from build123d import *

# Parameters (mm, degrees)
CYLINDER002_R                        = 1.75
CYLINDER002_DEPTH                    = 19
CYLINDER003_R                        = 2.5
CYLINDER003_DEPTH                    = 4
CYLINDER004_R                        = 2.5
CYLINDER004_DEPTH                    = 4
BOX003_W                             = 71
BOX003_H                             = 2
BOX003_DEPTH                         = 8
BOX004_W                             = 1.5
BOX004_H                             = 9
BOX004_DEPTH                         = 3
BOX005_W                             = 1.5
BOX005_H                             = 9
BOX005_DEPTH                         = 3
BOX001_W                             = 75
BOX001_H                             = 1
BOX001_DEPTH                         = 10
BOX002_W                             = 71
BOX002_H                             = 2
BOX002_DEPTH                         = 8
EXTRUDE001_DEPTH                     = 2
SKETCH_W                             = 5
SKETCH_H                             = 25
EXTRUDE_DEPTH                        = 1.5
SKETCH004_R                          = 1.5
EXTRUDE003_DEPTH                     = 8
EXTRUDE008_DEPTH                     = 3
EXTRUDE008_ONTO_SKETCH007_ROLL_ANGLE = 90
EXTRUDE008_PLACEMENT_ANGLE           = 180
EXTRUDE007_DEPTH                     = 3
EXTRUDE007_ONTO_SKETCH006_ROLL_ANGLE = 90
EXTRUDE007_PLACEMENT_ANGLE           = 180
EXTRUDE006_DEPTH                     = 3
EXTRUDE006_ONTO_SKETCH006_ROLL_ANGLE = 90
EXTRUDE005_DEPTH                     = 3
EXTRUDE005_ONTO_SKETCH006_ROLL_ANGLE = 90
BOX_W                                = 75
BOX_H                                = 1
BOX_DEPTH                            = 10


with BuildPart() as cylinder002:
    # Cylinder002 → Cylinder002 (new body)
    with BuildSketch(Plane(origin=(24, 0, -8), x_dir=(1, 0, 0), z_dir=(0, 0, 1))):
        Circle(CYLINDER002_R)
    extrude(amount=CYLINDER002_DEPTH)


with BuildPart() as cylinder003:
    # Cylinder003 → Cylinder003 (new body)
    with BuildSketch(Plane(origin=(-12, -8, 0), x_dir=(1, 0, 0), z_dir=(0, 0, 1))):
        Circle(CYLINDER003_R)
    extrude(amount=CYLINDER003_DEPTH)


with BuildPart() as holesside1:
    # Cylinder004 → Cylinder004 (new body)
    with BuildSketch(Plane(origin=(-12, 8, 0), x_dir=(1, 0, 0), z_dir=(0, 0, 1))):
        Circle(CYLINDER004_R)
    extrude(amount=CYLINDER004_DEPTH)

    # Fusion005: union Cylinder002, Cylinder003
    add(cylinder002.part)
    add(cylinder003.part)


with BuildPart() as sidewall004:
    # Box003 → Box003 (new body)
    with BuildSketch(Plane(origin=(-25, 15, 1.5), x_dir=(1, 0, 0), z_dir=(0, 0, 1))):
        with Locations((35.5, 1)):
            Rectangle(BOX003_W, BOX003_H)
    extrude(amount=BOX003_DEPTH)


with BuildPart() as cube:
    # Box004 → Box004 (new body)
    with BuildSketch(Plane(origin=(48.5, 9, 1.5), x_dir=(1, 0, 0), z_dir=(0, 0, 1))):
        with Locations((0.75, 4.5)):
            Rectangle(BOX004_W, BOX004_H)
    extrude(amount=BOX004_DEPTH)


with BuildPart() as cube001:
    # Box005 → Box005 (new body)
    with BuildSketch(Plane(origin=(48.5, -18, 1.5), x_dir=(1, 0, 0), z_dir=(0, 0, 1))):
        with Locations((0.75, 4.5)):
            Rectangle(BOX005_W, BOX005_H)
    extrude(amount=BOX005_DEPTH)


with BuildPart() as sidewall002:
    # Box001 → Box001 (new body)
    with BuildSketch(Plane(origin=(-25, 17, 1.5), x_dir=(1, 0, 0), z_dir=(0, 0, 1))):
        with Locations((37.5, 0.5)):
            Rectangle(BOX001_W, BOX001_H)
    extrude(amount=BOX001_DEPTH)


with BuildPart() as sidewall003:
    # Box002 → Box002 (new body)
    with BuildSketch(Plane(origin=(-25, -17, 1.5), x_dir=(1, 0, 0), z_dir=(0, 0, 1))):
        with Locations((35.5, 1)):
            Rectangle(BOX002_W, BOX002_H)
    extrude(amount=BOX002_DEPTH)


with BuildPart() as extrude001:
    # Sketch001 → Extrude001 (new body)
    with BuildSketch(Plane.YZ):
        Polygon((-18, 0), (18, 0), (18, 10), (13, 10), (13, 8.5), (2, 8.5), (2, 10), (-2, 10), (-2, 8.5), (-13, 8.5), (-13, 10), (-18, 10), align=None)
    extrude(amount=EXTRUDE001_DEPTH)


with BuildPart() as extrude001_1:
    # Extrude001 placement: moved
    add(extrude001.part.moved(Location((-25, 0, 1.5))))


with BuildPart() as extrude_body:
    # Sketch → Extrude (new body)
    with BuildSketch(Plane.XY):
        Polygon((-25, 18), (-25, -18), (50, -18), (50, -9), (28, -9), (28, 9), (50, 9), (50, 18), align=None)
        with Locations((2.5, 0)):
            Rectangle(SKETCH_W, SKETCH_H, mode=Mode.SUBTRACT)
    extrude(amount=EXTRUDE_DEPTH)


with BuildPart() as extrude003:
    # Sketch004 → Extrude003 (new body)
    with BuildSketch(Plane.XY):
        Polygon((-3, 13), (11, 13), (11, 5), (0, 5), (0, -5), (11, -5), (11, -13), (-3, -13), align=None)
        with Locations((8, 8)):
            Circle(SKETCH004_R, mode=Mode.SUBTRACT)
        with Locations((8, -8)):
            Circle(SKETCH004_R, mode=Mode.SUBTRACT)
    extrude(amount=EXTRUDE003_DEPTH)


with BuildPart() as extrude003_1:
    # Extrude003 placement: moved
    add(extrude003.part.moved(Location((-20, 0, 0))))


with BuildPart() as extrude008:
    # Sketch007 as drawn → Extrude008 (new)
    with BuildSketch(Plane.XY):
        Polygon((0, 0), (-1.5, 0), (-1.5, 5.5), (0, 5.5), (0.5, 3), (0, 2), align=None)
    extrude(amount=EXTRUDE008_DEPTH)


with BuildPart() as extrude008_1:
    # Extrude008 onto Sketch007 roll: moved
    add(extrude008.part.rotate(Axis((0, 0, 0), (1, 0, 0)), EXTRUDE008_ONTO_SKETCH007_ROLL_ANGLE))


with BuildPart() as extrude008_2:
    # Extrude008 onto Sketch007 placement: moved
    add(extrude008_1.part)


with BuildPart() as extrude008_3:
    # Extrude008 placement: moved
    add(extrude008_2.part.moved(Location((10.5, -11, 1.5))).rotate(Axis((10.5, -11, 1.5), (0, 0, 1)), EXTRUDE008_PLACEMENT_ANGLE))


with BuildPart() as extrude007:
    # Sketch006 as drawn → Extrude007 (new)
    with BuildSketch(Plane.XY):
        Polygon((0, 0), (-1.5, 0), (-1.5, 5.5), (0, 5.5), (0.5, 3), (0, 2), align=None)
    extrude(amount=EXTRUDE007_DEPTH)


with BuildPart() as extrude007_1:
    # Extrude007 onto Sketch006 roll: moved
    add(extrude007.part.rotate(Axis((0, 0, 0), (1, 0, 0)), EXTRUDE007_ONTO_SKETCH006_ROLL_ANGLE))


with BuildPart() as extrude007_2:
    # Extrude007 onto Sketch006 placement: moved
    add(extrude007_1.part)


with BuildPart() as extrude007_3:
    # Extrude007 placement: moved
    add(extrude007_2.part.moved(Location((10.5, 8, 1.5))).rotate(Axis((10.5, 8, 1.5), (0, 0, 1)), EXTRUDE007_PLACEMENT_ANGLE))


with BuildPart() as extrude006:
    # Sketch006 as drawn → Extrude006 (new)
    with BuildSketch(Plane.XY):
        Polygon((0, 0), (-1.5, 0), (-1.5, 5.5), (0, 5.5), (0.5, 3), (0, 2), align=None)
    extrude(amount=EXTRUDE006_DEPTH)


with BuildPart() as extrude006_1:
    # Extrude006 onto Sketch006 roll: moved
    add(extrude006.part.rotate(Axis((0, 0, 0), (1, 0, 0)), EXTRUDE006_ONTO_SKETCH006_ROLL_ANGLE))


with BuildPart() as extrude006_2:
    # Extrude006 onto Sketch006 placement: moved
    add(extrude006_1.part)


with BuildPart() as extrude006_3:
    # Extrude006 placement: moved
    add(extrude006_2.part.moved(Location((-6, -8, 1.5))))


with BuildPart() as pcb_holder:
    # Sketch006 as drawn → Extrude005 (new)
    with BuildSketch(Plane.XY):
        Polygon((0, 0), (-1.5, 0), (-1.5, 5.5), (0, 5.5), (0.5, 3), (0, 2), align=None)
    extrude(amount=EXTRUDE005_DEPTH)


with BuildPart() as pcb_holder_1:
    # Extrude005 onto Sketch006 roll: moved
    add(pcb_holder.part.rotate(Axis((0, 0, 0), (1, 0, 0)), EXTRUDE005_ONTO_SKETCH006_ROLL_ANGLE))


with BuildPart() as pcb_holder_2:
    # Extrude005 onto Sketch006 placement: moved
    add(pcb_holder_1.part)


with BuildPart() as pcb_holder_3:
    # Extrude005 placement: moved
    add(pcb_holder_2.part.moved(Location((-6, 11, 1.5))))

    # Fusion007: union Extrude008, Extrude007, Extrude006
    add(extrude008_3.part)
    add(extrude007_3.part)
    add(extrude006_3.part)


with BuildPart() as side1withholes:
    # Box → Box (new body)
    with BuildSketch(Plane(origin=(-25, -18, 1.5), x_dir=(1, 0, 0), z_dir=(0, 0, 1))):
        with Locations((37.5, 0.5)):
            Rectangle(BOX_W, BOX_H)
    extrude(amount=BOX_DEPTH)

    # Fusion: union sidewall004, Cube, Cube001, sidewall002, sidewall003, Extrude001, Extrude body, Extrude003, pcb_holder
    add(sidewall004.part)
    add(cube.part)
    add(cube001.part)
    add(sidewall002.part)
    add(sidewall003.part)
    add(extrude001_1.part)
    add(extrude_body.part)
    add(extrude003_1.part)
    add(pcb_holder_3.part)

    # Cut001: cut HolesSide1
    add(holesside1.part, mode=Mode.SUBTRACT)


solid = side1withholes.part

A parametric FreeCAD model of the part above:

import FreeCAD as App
import Part
import Sketcher

V = App.Vector
Q = App.Units.Quantity

doc = App.newDocument("Part")
params = doc.addObject("Spreadsheet::Sheet", "Params")
for row, (alias, value) in enumerate([
    ("sketch1_diameter", "3.5 mm"),
    ("pad1_length", "19 mm"),
    ("sketch2_diameter", "5 mm"),
    ("pad2_length", "4 mm"),
    ("sketch3_diameter", "5 mm"),
    ("pad3_length", "4 mm"),
    ("sketch4_width", "71 mm"),
    ("sketch4_height", "2 mm"),
    ("pad4_length", "8 mm"),
    ("sketch5_height", "9 mm"),
    ("sketch5_width", "1.5 mm"),
    ("pad5_length", "3 mm"),
    ("sketch6_height", "9 mm"),
    ("sketch6_width", "1.5 mm"),
    ("pad6_length", "3 mm"),
    ("sketch7_width", "75 mm"),
    ("sketch7_height", "1 mm"),
    ("pad7_length", "10 mm"),
    ("sketch8_width", "71 mm"),
    ("sketch8_height", "2 mm"),
    ("pad8_length", "8 mm"),
    ("sketch9_width", "36 mm"),
    ("sketch9_width2", "5 mm"),
    ("sketch9_width3", "11 mm"),
    ("sketch9_height", "10 mm"),
    ("sketch9_height2", "1.5 mm"),
    ("pad9_length", "2 mm"),
    ("sketch10_width", "75 mm"),
    ("sketch10_width2", "22 mm"),
    ("sketch10_width3", "5 mm"),
    ("sketch10_height", "36 mm"),
    ("sketch10_height2", "9 mm"),
    ("pad10_length", "1.5 mm"),
    ("sketch11_diameter", "3 mm"),
    ("sketch11_width", "14 mm"),
    ("sketch11_width2", "11 mm"),
    ("sketch11_height", "26 mm"),
    ("sketch11_height2", "8 mm"),
    ("pad11_length", "8 mm"),
    ("sketch12_height", "2 mm"),
    ("sketch12_width", "1.5 mm"),
    ("sketch12_height2", "5.5 mm"),
    ("pad12_length", "3 mm"),
    ("sketch13_height", "2 mm"),
    ("sketch13_width", "1.5 mm"),
    ("sketch13_height2", "5.5 mm"),
    ("pad13_length", "3 mm"),
    ("sketch14_height", "2 mm"),
    ("sketch14_width", "1.5 mm"),
    ("sketch14_height2", "5.5 mm"),
    ("pad14_length", "3 mm"),
    ("sketch15_height", "2 mm"),
    ("sketch15_width", "1.5 mm"),
    ("sketch15_height2", "5.5 mm"),
    ("pad15_length", "3 mm"),
    ("sketch16_width", "75 mm"),
    ("sketch16_height", "1 mm"),
    ("pad16_length", "10 mm"),
], start=1):
    params.set(f"A{row}", alias)
    params.set(f"B{row}", "=" + value)
    params.setAlias(f"B{row}", alias)

body = doc.addObject("PartDesign::Body", "Body")

sketch1 = body.newObject("Sketcher::SketchObject", "Sketch")
sketch1.AttachmentSupport = (doc.getObject("XY_Plane"), [""])
sketch1.MapMode = "FlatFace"
sketch1.AttachmentOffset = App.Placement(V(0, 0, -8), App.Rotation())
sketch1.addGeometry(Part.Circle(V(24, 0, 0), V(0, 0, 1), 1.75), False)
sketch1.addConstraint([
    Sketcher.Constraint("PointOnObject", 0, 3, -1),
    Sketcher.Constraint("Diameter", 0, Q("3.5 mm")),
    Sketcher.Constraint("DistanceX", -1, 1, 0, 3, Q("24 mm")),
])
sketch1.setExpression("Constraints[1]", "Params.sketch1_diameter")
pad1 = body.newObject("PartDesign::Pad", "Pad")
pad1.Profile = sketch1
pad1.setExpression("Length", "Params.pad1_length")
body2 = doc.addObject("PartDesign::Body", "Body001")

sketch2 = body2.newObject("Sketcher::SketchObject", "Sketch001")
sketch2.AttachmentSupport = (doc.getObject("XY_Plane001"), [""])
sketch2.MapMode = "FlatFace"
sketch2.addGeometry(Part.Circle(V(-12, -8, 0), V(0, 0, 1), 2.5), False)
sketch2.addConstraint([
    Sketcher.Constraint("Diameter", 0, Q("5 mm")),
    Sketcher.Constraint("DistanceX", 0, 3, -1, 1, Q("12 mm")),
    Sketcher.Constraint("DistanceY", 0, 3, -1, 1, Q("8 mm")),
])
sketch2.setExpression("Constraints[0]", "Params.sketch2_diameter")
pad2 = body2.newObject("PartDesign::Pad", "Pad001")
pad2.Profile = sketch2
pad2.setExpression("Length", "Params.pad2_length")
body3 = doc.addObject("PartDesign::Body", "Body002")
body3.AllowCompound = True

sketch3 = body3.newObject("Sketcher::SketchObject", "Sketch002")
sketch3.AttachmentSupport = (doc.getObject("XY_Plane002"), [""])
sketch3.MapMode = "FlatFace"
sketch3.addGeometry(Part.Circle(V(-12, 8, 0), V(0, 0, 1), 2.5), False)
sketch3.addConstraint([
    Sketcher.Constraint("Diameter", 0, Q("5 mm")),
    Sketcher.Constraint("DistanceX", 0, 3, -1, 1, Q("12 mm")),
    Sketcher.Constraint("DistanceY", -1, 1, 0, 3, Q("8 mm")),
])
sketch3.setExpression("Constraints[0]", "Params.sketch3_diameter")
pad3 = body3.newObject("PartDesign::Pad", "Pad002")
pad3.Profile = sketch3
pad3.setExpression("Length", "Params.pad3_length")
doc.recompute()

boolean = body3.newObject("PartDesign::Boolean", "Boolean")
boolean.Type = "Fuse"
boolean.addObjects([body])
doc.recompute()

boolean2 = body3.newObject("PartDesign::Boolean", "Boolean001")
boolean2.Type = "Fuse"
boolean2.addObjects([body2])
body4 = doc.addObject("PartDesign::Body", "Body003")

sketch4 = body4.newObject("Sketcher::SketchObject", "Sketch003")
sketch4.AttachmentSupport = (doc.getObject("XY_Plane003"), [""])
sketch4.MapMode = "FlatFace"
sketch4.AttachmentOffset = App.Placement(V(0, 0, 1.5), App.Rotation())
sketch4.addGeometry([
    Part.LineSegment(V(-25, 17, 0), V(-25, 15, 0)),
    Part.LineSegment(V(-25, 15, 0), V(46, 15, 0)),
    Part.LineSegment(V(46, 15, 0), V(46, 17, 0)),
    Part.LineSegment(V(46, 17, 0), V(-25, 17, 0)),
], False)
sketch4.addConstraint([
    Sketcher.Constraint("Coincident", 0, 2, 1, 1),
    Sketcher.Constraint("Coincident", 1, 2, 2, 1),
    Sketcher.Constraint("Coincident", 2, 2, 3, 1),
    Sketcher.Constraint("Coincident", 3, 2, 0, 1),
    Sketcher.Constraint("Vertical", 0),
    Sketcher.Constraint("Horizontal", 1),
    Sketcher.Constraint("Vertical", 2),
    Sketcher.Constraint("Horizontal", 3),
    Sketcher.Constraint("DistanceX", 1, 1, 1, 2, Q("71 mm")),
    Sketcher.Constraint("DistanceY", 0, 2, 0, 1, Q("2 mm")),
    Sketcher.Constraint("DistanceX", 0, 2, -1, 1, Q("25 mm")),
    Sketcher.Constraint("DistanceY", -1, 1, 0, 2, Q("15 mm")),
])
sketch4.setExpression("Constraints[8]", "Params.sketch4_width")
sketch4.setExpression("Constraints[9]", "Params.sketch4_height")
pad4 = body4.newObject("PartDesign::Pad", "Pad003")
pad4.Profile = sketch4
pad4.setExpression("Length", "Params.pad4_length")
body5 = doc.addObject("PartDesign::Body", "Body004")

sketch5 = body5.newObject("Sketcher::SketchObject", "Sketch004")
sketch5.AttachmentSupport = (doc.getObject("XY_Plane004"), [""])
sketch5.MapMode = "FlatFace"
sketch5.AttachmentOffset = App.Placement(V(0, 0, 1.5), App.Rotation())
sketch5.addGeometry([
    Part.LineSegment(V(48.5, 18, 0), V(48.5, 9, 0)),
    Part.LineSegment(V(48.5, 9, 0), V(50, 9, 0)),
    Part.LineSegment(V(50, 9, 0), V(50, 18, 0)),
    Part.LineSegment(V(50, 18, 0), V(48.5, 18, 0)),
], False)
sketch5.addConstraint([
    Sketcher.Constraint("Coincident", 0, 2, 1, 1),
    Sketcher.Constraint("Coincident", 1, 2, 2, 1),
    Sketcher.Constraint("Coincident", 2, 2, 3, 1),
    Sketcher.Constraint("Coincident", 3, 2, 0, 1),
    Sketcher.Constraint("Vertical", 0),
    Sketcher.Constraint("Horizontal", 1),
    Sketcher.Constraint("Vertical", 2),
    Sketcher.Constraint("Horizontal", 3),
    Sketcher.Constraint("DistanceY", 0, 2, 0, 1, Q("9 mm")),
    Sketcher.Constraint("DistanceX", 1, 1, 1, 2, Q("1.5 mm")),
    Sketcher.Constraint("DistanceY", -1, 1, 0, 2, Q("9 mm")),
    Sketcher.Constraint("DistanceX", -1, 1, 1, 2, Q("50 mm")),
])
sketch5.setExpression("Constraints[8]", "Params.sketch5_height")
sketch5.setExpression("Constraints[9]", "Params.sketch5_width")
pad5 = body5.newObject("PartDesign::Pad", "Pad004")
pad5.Profile = sketch5
pad5.setExpression("Length", "Params.pad5_length")
body6 = doc.addObject("PartDesign::Body", "Body005")

sketch6 = body6.newObject("Sketcher::SketchObject", "Sketch005")
sketch6.AttachmentSupport = (doc.getObject("XY_Plane005"), [""])
sketch6.MapMode = "FlatFace"
sketch6.AttachmentOffset = App.Placement(V(0, 0, 1.5), App.Rotation())
sketch6.addGeometry([
    Part.LineSegment(V(48.5, -9, 0), V(48.5, -18, 0)),
    Part.LineSegment(V(48.5, -18, 0), V(50, -18, 0)),
    Part.LineSegment(V(50, -18, 0), V(50, -9, 0)),
    Part.LineSegment(V(50, -9, 0), V(48.5, -9, 0)),
], False)
sketch6.addConstraint([
    Sketcher.Constraint("Coincident", 0, 2, 1, 1),
    Sketcher.Constraint("Coincident", 1, 2, 2, 1),
    Sketcher.Constraint("Coincident", 2, 2, 3, 1),
    Sketcher.Constraint("Coincident", 3, 2, 0, 1),
    Sketcher.Constraint("Vertical", 0),
    Sketcher.Constraint("Horizontal", 1),
    Sketcher.Constraint("Vertical", 2),
    Sketcher.Constraint("Horizontal", 3),
    Sketcher.Constraint("DistanceY", 0, 2, 0, 1, Q("9 mm")),
    Sketcher.Constraint("DistanceX", 1, 1, 1, 2, Q("1.5 mm")),
    Sketcher.Constraint("DistanceY", 0, 2, -1, 1, Q("18 mm")),
    Sketcher.Constraint("DistanceX", -1, 1, 1, 2, Q("50 mm")),
])
sketch6.setExpression("Constraints[8]", "Params.sketch6_height")
sketch6.setExpression("Constraints[9]", "Params.sketch6_width")
pad6 = body6.newObject("PartDesign::Pad", "Pad005")
pad6.Profile = sketch6
pad6.setExpression("Length", "Params.pad6_length")
body7 = doc.addObject("PartDesign::Body", "Body006")

sketch7 = body7.newObject("Sketcher::SketchObject", "Sketch006")
sketch7.AttachmentSupport = (doc.getObject("XY_Plane006"), [""])
sketch7.MapMode = "FlatFace"
sketch7.AttachmentOffset = App.Placement(V(0, 0, 1.5), App.Rotation())
sketch7.addGeometry([
    Part.LineSegment(V(-25, 18, 0), V(-25, 17, 0)),
    Part.LineSegment(V(-25, 17, 0), V(50, 17, 0)),
    Part.LineSegment(V(50, 17, 0), V(50, 18, 0)),
    Part.LineSegment(V(50, 18, 0), V(-25, 18, 0)),
], False)
sketch7.addConstraint([
    Sketcher.Constraint("Coincident", 0, 2, 1, 1),
    Sketcher.Constraint("Coincident", 1, 2, 2, 1),
    Sketcher.Constraint("Coincident", 2, 2, 3, 1),
    Sketcher.Constraint("Coincident", 3, 2, 0, 1),
    Sketcher.Constraint("Vertical", 0),
    Sketcher.Constraint("Horizontal", 1),
    Sketcher.Constraint("Vertical", 2),
    Sketcher.Constraint("Horizontal", 3),
    Sketcher.Constraint("DistanceX", 1, 1, 1, 2, Q("75 mm")),
    Sketcher.Constraint("DistanceY", 0, 2, 0, 1, Q("1 mm")),
    Sketcher.Constraint("DistanceX", 0, 2, -1, 1, Q("25 mm")),
    Sketcher.Constraint("DistanceY", -1, 1, 0, 2, Q("17 mm")),
])
sketch7.setExpression("Constraints[8]", "Params.sketch7_width")
sketch7.setExpression("Constraints[9]", "Params.sketch7_height")
pad7 = body7.newObject("PartDesign::Pad", "Pad006")
pad7.Profile = sketch7
pad7.setExpression("Length", "Params.pad7_length")
body8 = doc.addObject("PartDesign::Body", "Body007")

sketch8 = body8.newObject("Sketcher::SketchObject", "Sketch007")
sketch8.AttachmentSupport = (doc.getObject("XY_Plane007"), [""])
sketch8.MapMode = "FlatFace"
sketch8.AttachmentOffset = App.Placement(V(0, 0, 1.5), App.Rotation())
sketch8.addGeometry([
    Part.LineSegment(V(-25, -15, 0), V(-25, -17, 0)),
    Part.LineSegment(V(-25, -17, 0), V(46, -17, 0)),
    Part.LineSegment(V(46, -17, 0), V(46, -15, 0)),
    Part.LineSegment(V(46, -15, 0), V(-25, -15, 0)),
], False)
sketch8.addConstraint([
    Sketcher.Constraint("Coincident", 0, 2, 1, 1),
    Sketcher.Constraint("Coincident", 1, 2, 2, 1),
    Sketcher.Constraint("Coincident", 2, 2, 3, 1),
    Sketcher.Constraint("Coincident", 3, 2, 0, 1),
    Sketcher.Constraint("Vertical", 0),
    Sketcher.Constraint("Horizontal", 1),
    Sketcher.Constraint("Vertical", 2),
    Sketcher.Constraint("Horizontal", 3),
    Sketcher.Constraint("DistanceX", 1, 1, 1, 2, Q("71 mm")),
    Sketcher.Constraint("DistanceY", 0, 2, 0, 1, Q("2 mm")),
    Sketcher.Constraint("DistanceX", 0, 2, -1, 1, Q("25 mm")),
    Sketcher.Constraint("DistanceY", 0, 2, -1, 1, Q("17 mm")),
])
sketch8.setExpression("Constraints[8]", "Params.sketch8_width")
sketch8.setExpression("Constraints[9]", "Params.sketch8_height")
pad8 = body8.newObject("PartDesign::Pad", "Pad007")
pad8.Profile = sketch8
pad8.setExpression("Length", "Params.pad8_length")
body9 = doc.addObject("PartDesign::Body", "Body008")

sketch9 = body9.newObject("Sketcher::SketchObject", "Sketch008")
sketch9.AttachmentSupport = (doc.getObject("YZ_Plane008"), [""])
sketch9.MapMode = "FlatFace"
sketch9.addGeometry([
    Part.LineSegment(V(-18, 0, 0), V(18, 0, 0)),
    Part.LineSegment(V(18, 0, 0), V(18, 10, 0)),
    Part.LineSegment(V(18, 10, 0), V(13, 10, 0)),
    Part.LineSegment(V(13, 10, 0), V(13, 8.5, 0)),
    Part.LineSegment(V(13, 8.5, 0), V(2, 8.5, 0)),
    Part.LineSegment(V(2, 8.5, 0), V(2, 10, 0)),
    Part.LineSegment(V(2, 10, 0), V(-2, 10, 0)),
    Part.LineSegment(V(-2, 10, 0), V(-2, 8.5, 0)),
    Part.LineSegment(V(-2, 8.5, 0), V(-13, 8.5, 0)),
    Part.LineSegment(V(-13, 8.5, 0), V(-13, 10, 0)),
    Part.LineSegment(V(-13, 10, 0), V(-18, 10, 0)),
    Part.LineSegment(V(-18, 10, 0), V(-18, 0, 0)),
], False)
sketch9.addConstraint([
    Sketcher.Constraint("Coincident", 0, 2, 1, 1),
    Sketcher.Constraint("Coincident", 1, 2, 2, 1),
    Sketcher.Constraint("Coincident", 2, 2, 3, 1),
    Sketcher.Constraint("Coincident", 3, 2, 4, 1),
    Sketcher.Constraint("Coincident", 4, 2, 5, 1),
    Sketcher.Constraint("Coincident", 5, 2, 6, 1),
    Sketcher.Constraint("Coincident", 6, 2, 7, 1),
    Sketcher.Constraint("Coincident", 7, 2, 8, 1),
    Sketcher.Constraint("Coincident", 8, 2, 9, 1),
    Sketcher.Constraint("Coincident", 9, 2, 10, 1),
    Sketcher.Constraint("Coincident", 10, 2, 11, 1),
    Sketcher.Constraint("Coincident", 11, 2, 0, 1),
    Sketcher.Constraint("Horizontal", 0),
    Sketcher.Constraint("Vertical", 1),
    Sketcher.Constraint("Horizontal", 2),
    Sketcher.Constraint("Vertical", 3),
    Sketcher.Constraint("Horizontal", 4),
    Sketcher.Constraint("Vertical", 5),
    Sketcher.Constraint("Horizontal", 6),
    Sketcher.Constraint("Vertical", 7),
    Sketcher.Constraint("Horizontal", 8),
    Sketcher.Constraint("Vertical", 9),
    Sketcher.Constraint("Horizontal", 10),
    Sketcher.Constraint("Vertical", 11),
    Sketcher.Constraint("Symmetric", 0, 2, 11, 2, -1, 1),
    Sketcher.Constraint("Symmetric", 4, 2, 7, 2, -2),
    Sketcher.Constraint("Symmetric", 2, 2, 9, 2, -2),
    Sketcher.Constraint("Horizontal", 2, 2, 5, 2),
    Sketcher.Constraint("DistanceX", 0, 1, 0, 2, Q("36 mm")),
    Sketcher.Constraint("DistanceX", 2, 2, 2, 1, Q("5 mm")),
    Sketcher.Constraint("DistanceX", 4, 2, 4, 1, Q("11 mm")),
    Sketcher.Constraint("DistanceY", 1, 1, 1, 2, Q("10 mm")),
    Sketcher.Constraint("DistanceY", 3, 2, 3, 1, Q("1.5 mm")),
])
sketch9.setExpression("Constraints[28]", "Params.sketch9_width")
sketch9.setExpression("Constraints[29]", "Params.sketch9_width2")
sketch9.setExpression("Constraints[30]", "Params.sketch9_width3")
sketch9.setExpression("Constraints[31]", "Params.sketch9_height")
sketch9.setExpression("Constraints[32]", "Params.sketch9_height2")
pad9 = body9.newObject("PartDesign::Pad", "Pad008")
pad9.Profile = sketch9
pad9.setExpression("Length", "Params.pad9_length")
body10 = doc.addObject("PartDesign::Body", "Body009")
doc.recompute()

body9.Placement = App.Placement(V(-25, 0, 1.5), App.Rotation(V(0, 0, 1), 0))
boolean3 = body10.newObject("PartDesign::Boolean", "Boolean002")
boolean3.Type = "Fuse"
boolean3.addObjects([body9])
body11 = doc.addObject("PartDesign::Body", "Body010")

sketch10 = body11.newObject("Sketcher::SketchObject", "Sketch009")
sketch10.AttachmentSupport = (doc.getObject("XY_Plane010"), [""])
sketch10.MapMode = "FlatFace"
sketch10.addGeometry([
    Part.LineSegment(V(-25, 18, 0), V(-25, -18, 0)),
    Part.LineSegment(V(-25, -18, 0), V(50, -18, 0)),
    Part.LineSegment(V(50, -18, 0), V(50, -9, 0)),
    Part.LineSegment(V(50, -9, 0), V(28, -9, 0)),
    Part.LineSegment(V(28, -9, 0), V(28, 9, 0)),
    Part.LineSegment(V(28, 9, 0), V(50, 9, 0)),
    Part.LineSegment(V(50, 9, 0), V(50, 18, 0)),
    Part.LineSegment(V(50, 18, 0), V(-25, 18, 0)),
    Part.LineSegment(V(5, -12.5, 0), V(0, -12.5, 0)),
    Part.LineSegment(V(0, -12.5, 0), V(0, 12.5, 0)),
    Part.LineSegment(V(0, 12.5, 0), V(5, 12.5, 0)),
    Part.LineSegment(V(5, 12.5, 0), V(5, -12.5, 0)),
], False)
sketch10.addConstraint([
    Sketcher.Constraint("Coincident", 0, 2, 1, 1),
    Sketcher.Constraint("Coincident", 1, 2, 2, 1),
    Sketcher.Constraint("Coincident", 2, 2, 3, 1),
    Sketcher.Constraint("Coincident", 3, 2, 4, 1),
    Sketcher.Constraint("Coincident", 4, 2, 5, 1),
    Sketcher.Constraint("Coincident", 5, 2, 6, 1),
    Sketcher.Constraint("Coincident", 6, 2, 7, 1),
    Sketcher.Constraint("Coincident", 7, 2, 0, 1),
    Sketcher.Constraint("Coincident", 8, 2, 9, 1),
    Sketcher.Constraint("Coincident", 9, 2, 10, 1),
    Sketcher.Constraint("Coincident", 10, 2, 11, 1),
    Sketcher.Constraint("Coincident", 11, 2, 8, 1),
    Sketcher.Constraint("Vertical", 0),
    Sketcher.Constraint("Horizontal", 1),
    Sketcher.Constraint("Vertical", 2),
    Sketcher.Constraint("Horizontal", 3),
    Sketcher.Constraint("Vertical", 4),
    Sketcher.Constraint("Horizontal", 5),
    Sketcher.Constraint("Vertical", 6),
    Sketcher.Constraint("Horizontal", 7),
    Sketcher.Constraint("Horizontal", 8),
    Sketcher.Constraint("Vertical", 9),
    Sketcher.Constraint("Horizontal", 10),
    Sketcher.Constraint("Vertical", 11),
    Sketcher.Constraint("Symmetric", 8, 2, 9, 2, -1, 1),
    Sketcher.Constraint("Symmetric", 2, 2, 5, 2, -1),
    Sketcher.Constraint("Equal", 2, 6),
    Sketcher.Constraint("DistanceX", 1, 1, 1, 2, Q("75 mm")),
    Sketcher.Constraint("DistanceX", 3, 2, 3, 1, Q("22 mm")),
    Sketcher.Constraint("DistanceX", 8, 2, 8, 1, Q("5 mm")),
    Sketcher.Constraint("DistanceY", 0, 2, 0, 1, Q("36 mm")),
    Sketcher.Constraint("DistanceY", 2, 1, 2, 2, Q("9 mm")),
    Sketcher.Constraint("DistanceY", 9, 1, 9, 2, Q("25 mm")),
    Sketcher.Constraint("DistanceX", 0, 2, -1, 1, Q("25 mm")),
])
sketch10.setExpression("Constraints[27]", "Params.sketch10_width")
sketch10.setExpression("Constraints[28]", "Params.sketch10_width2")
sketch10.setExpression("Constraints[29]", "Params.sketch10_width3")
sketch10.setExpression("Constraints[30]", "Params.sketch10_height")
sketch10.setExpression("Constraints[31]", "Params.sketch10_height2")
pad10 = body11.newObject("PartDesign::Pad", "Pad009")
pad10.Profile = sketch10
pad10.setExpression("Length", "Params.pad10_length")
body12 = doc.addObject("PartDesign::Body", "Body011")

sketch11 = body12.newObject("Sketcher::SketchObject", "Sketch010")
sketch11.AttachmentSupport = (doc.getObject("XY_Plane011"), [""])
sketch11.MapMode = "FlatFace"
sketch11.addGeometry([
    Part.LineSegment(V(11, 13, 0), V(-3, 13, 0)),
    Part.LineSegment(V(-3, 13, 0), V(-3, -13, 0)),
    Part.LineSegment(V(-3, -13, 0), V(11, -13, 0)),
    Part.LineSegment(V(11, -13, 0), V(11, -5, 0)),
    Part.LineSegment(V(11, -5, 0), V(0, -5, 0)),
    Part.LineSegment(V(0, -5, 0), V(0, 5, 0)),
    Part.LineSegment(V(0, 5, 0), V(11, 5, 0)),
    Part.LineSegment(V(11, 5, 0), V(11, 13, 0)),
    Part.Circle(V(8, -8, 0), V(0, 0, 1), 1.5),
    Part.Circle(V(8, 8, 0), V(0, 0, 1), 1.5),
], False)
sketch11.addConstraint([
    Sketcher.Constraint("Coincident", 0, 2, 1, 1),
    Sketcher.Constraint("Coincident", 1, 2, 2, 1),
    Sketcher.Constraint("Coincident", 2, 2, 3, 1),
    Sketcher.Constraint("Coincident", 3, 2, 4, 1),
    Sketcher.Constraint("Coincident", 4, 2, 5, 1),
    Sketcher.Constraint("Coincident", 5, 2, 6, 1),
    Sketcher.Constraint("Coincident", 6, 2, 7, 1),
    Sketcher.Constraint("Coincident", 7, 2, 0, 1),
    Sketcher.Constraint("Horizontal", 0),
    Sketcher.Constraint("Vertical", 1),
    Sketcher.Constraint("Horizontal", 2),
    Sketcher.Constraint("Vertical", 3),
    Sketcher.Constraint("Horizontal", 4),
    Sketcher.Constraint("Vertical", 5),
    Sketcher.Constraint("Horizontal", 6),
    Sketcher.Constraint("Vertical", 7),
    Sketcher.Constraint("Equal", 8, 9),
    Sketcher.Constraint("Symmetric", 4, 2, 5, 2, -1, 1),
    Sketcher.Constraint("Symmetric", 8, 3, 9, 3, -1),
    Sketcher.Constraint("Symmetric", 2, 2, 7, 2, -1),
    Sketcher.Constraint("Diameter", 8, Q("3 mm")),
    Sketcher.Constraint("DistanceX", 0, 2, 0, 1, Q("14 mm")),
    Sketcher.Constraint("DistanceX", 4, 2, 4, 1, Q("11 mm")),
    Sketcher.Constraint("DistanceY", 1, 2, 1, 1, Q("26 mm")),
    Sketcher.Constraint("DistanceY", 3, 1, 3, 2, Q("8 mm")),
    Sketcher.Constraint("DistanceX", -1, 1, 8, 3, Q("8 mm")),
    Sketcher.Constraint("DistanceY", 8, 3, -1, 1, Q("8 mm")),
])
sketch11.setExpression("Constraints[20]", "Params.sketch11_diameter")
sketch11.setExpression("Constraints[21]", "Params.sketch11_width")
sketch11.setExpression("Constraints[22]", "Params.sketch11_width2")
sketch11.setExpression("Constraints[23]", "Params.sketch11_height")
sketch11.setExpression("Constraints[24]", "Params.sketch11_height2")
pad11 = body12.newObject("PartDesign::Pad", "Pad010")
pad11.Profile = sketch11
pad11.setExpression("Length", "Params.pad11_length")
body13 = doc.addObject("PartDesign::Body", "Body012")
doc.recompute()

body12.Placement = App.Placement(V(-20, 0, 0), App.Rotation(V(0, 0, 1), 0))
boolean4 = body13.newObject("PartDesign::Boolean", "Boolean003")
boolean4.Type = "Fuse"
boolean4.addObjects([body12])
body14 = doc.addObject("PartDesign::Body", "Body013")

sketch12 = body14.newObject("Sketcher::SketchObject", "Sketch011")
sketch12.AttachmentSupport = (doc.getObject("XY_Plane013"), [""])
sketch12.MapMode = "FlatFace"
sketch12.addGeometry([
    Part.LineSegment(V(-1.5, 0, 0), V(0, 0, 0)),
    Part.LineSegment(V(0, 0, 0), V(0, 2, 0)),
    Part.LineSegment(V(0, 2, 0), V(0.5, 3, 0)),
    Part.LineSegment(V(0.5, 3, 0), V(0, 5.5, 0)),
    Part.LineSegment(V(0, 5.5, 0), V(-1.5, 5.5, 0)),
    Part.LineSegment(V(-1.5, 5.5, 0), V(-1.5, 0, 0)),
], False)
sketch12.addConstraint([
    Sketcher.Constraint("Coincident", 0, 2, 1, 1),
    Sketcher.Constraint("Coincident", 1, 2, 2, 1),
    Sketcher.Constraint("Coincident", 2, 2, 3, 1),
    Sketcher.Constraint("Coincident", 3, 2, 4, 1),
    Sketcher.Constraint("Coincident", 4, 2, 5, 1),
    Sketcher.Constraint("Coincident", 5, 2, 0, 1),
    Sketcher.Constraint("Horizontal", 0),
    Sketcher.Constraint("Vertical", 1),
    Sketcher.Constraint("Horizontal", 4),
    Sketcher.Constraint("Vertical", 5),
    Sketcher.Constraint("Coincident", 0, 2, -1, 1),
    Sketcher.Constraint("PointOnObject", 3, 2, -2),
    Sketcher.Constraint("DistanceY", 1, 1, 1, 2, Q("2 mm")),
    Sketcher.Constraint("DistanceX", 0, 1, 0, 2, Q("1.5 mm")),
    Sketcher.Constraint("DistanceY", 5, 2, 5, 1, Q("5.5 mm")),
    Sketcher.Constraint("DistanceY", -1, 1, 2, 2, Q("3 mm")),
    Sketcher.Constraint("DistanceX", 4, 2, 2, 2, Q("2 mm")),
])
sketch12.setExpression("Constraints[12]", "Params.sketch12_height")
sketch12.setExpression("Constraints[13]", "Params.sketch12_width")
sketch12.setExpression("Constraints[14]", "Params.sketch12_height2")
pad12 = body14.newObject("PartDesign::Pad", "Pad011")
pad12.Profile = sketch12
pad12.setExpression("Length", "Params.pad12_length")
body15 = doc.addObject("PartDesign::Body", "Body014")
doc.recompute()

body14.Placement = App.Placement(V(0, 0, 0), App.Rotation(V(1, 0, 0), 90))
boolean5 = body15.newObject("PartDesign::Boolean", "Boolean004")
boolean5.Type = "Fuse"
boolean5.addObjects([body14])
body16 = doc.addObject("PartDesign::Body", "Body015")
doc.recompute()

body15.Placement = App.Placement(V(10.5, -11, 1.5), App.Rotation(V(0, 0, 1), 180))
boolean6 = body16.newObject("PartDesign::Boolean", "Boolean005")
boolean6.Type = "Fuse"
boolean6.addObjects([body15])
body17 = doc.addObject("PartDesign::Body", "Body016")

sketch13 = body17.newObject("Sketcher::SketchObject", "Sketch012")
sketch13.AttachmentSupport = (doc.getObject("XY_Plane016"), [""])
sketch13.MapMode = "FlatFace"
sketch13.addGeometry([
    Part.LineSegment(V(-1.5, 0, 0), V(0, 0, 0)),
    Part.LineSegment(V(0, 0, 0), V(0, 2, 0)),
    Part.LineSegment(V(0, 2, 0), V(0.5, 3, 0)),
    Part.LineSegment(V(0.5, 3, 0), V(0, 5.5, 0)),
    Part.LineSegment(V(0, 5.5, 0), V(-1.5, 5.5, 0)),
    Part.LineSegment(V(-1.5, 5.5, 0), V(-1.5, 0, 0)),
], False)
sketch13.addConstraint([
    Sketcher.Constraint("Coincident", 0, 2, 1, 1),
    Sketcher.Constraint("Coincident", 1, 2, 2, 1),
    Sketcher.Constraint("Coincident", 2, 2, 3, 1),
    Sketcher.Constraint("Coincident", 3, 2, 4, 1),
    Sketcher.Constraint("Coincident", 4, 2, 5, 1),
    Sketcher.Constraint("Coincident", 5, 2, 0, 1),
    Sketcher.Constraint("Horizontal", 0),
    Sketcher.Constraint("Vertical", 1),
    Sketcher.Constraint("Horizontal", 4),
    Sketcher.Constraint("Vertical", 5),
    Sketcher.Constraint("Coincident", 0, 2, -1, 1),
    Sketcher.Constraint("PointOnObject", 3, 2, -2),
    Sketcher.Constraint("DistanceY", 1, 1, 1, 2, Q("2 mm")),
    Sketcher.Constraint("DistanceX", 0, 1, 0, 2, Q("1.5 mm")),
    Sketcher.Constraint("DistanceY", 5, 2, 5, 1, Q("5.5 mm")),
    Sketcher.Constraint("DistanceY", -1, 1, 2, 2, Q("3 mm")),
    Sketcher.Constraint("DistanceX", 4, 2, 2, 2, Q("2 mm")),
])
sketch13.setExpression("Constraints[12]", "Params.sketch13_height")
sketch13.setExpression("Constraints[13]", "Params.sketch13_width")
sketch13.setExpression("Constraints[14]", "Params.sketch13_height2")
pad13 = body17.newObject("PartDesign::Pad", "Pad012")
pad13.Profile = sketch13
pad13.setExpression("Length", "Params.pad13_length")
body18 = doc.addObject("PartDesign::Body", "Body017")
doc.recompute()

body17.Placement = App.Placement(V(0, 0, 0), App.Rotation(V(1, 0, 0), 90))
boolean7 = body18.newObject("PartDesign::Boolean", "Boolean006")
boolean7.Type = "Fuse"
boolean7.addObjects([body17])
body19 = doc.addObject("PartDesign::Body", "Body018")
doc.recompute()

body18.Placement = App.Placement(V(10.5, 8, 1.5), App.Rotation(V(0, 0, 1), 180))
boolean8 = body19.newObject("PartDesign::Boolean", "Boolean007")
boolean8.Type = "Fuse"
boolean8.addObjects([body18])
body20 = doc.addObject("PartDesign::Body", "Body019")

sketch14 = body20.newObject("Sketcher::SketchObject", "Sketch013")
sketch14.AttachmentSupport = (doc.getObject("XY_Plane019"), [""])
sketch14.MapMode = "FlatFace"
sketch14.addGeometry([
    Part.LineSegment(V(-1.5, 0, 0), V(0, 0, 0)),
    Part.LineSegment(V(0, 0, 0), V(0, 2, 0)),
    Part.LineSegment(V(0, 2, 0), V(0.5, 3, 0)),
    Part.LineSegment(V(0.5, 3, 0), V(0, 5.5, 0)),
    Part.LineSegment(V(0, 5.5, 0), V(-1.5, 5.5, 0)),
    Part.LineSegment(V(-1.5, 5.5, 0), V(-1.5, 0, 0)),
], False)
sketch14.addConstraint([
    Sketcher.Constraint("Coincident", 0, 2, 1, 1),
    Sketcher.Constraint("Coincident", 1, 2, 2, 1),
    Sketcher.Constraint("Coincident", 2, 2, 3, 1),
    Sketcher.Constraint("Coincident", 3, 2, 4, 1),
    Sketcher.Constraint("Coincident", 4, 2, 5, 1),
    Sketcher.Constraint("Coincident", 5, 2, 0, 1),
    Sketcher.Constraint("Horizontal", 0),
    Sketcher.Constraint("Vertical", 1),
    Sketcher.Constraint("Horizontal", 4),
    Sketcher.Constraint("Vertical", 5),
    Sketcher.Constraint("Coincident", 0, 2, -1, 1),
    Sketcher.Constraint("PointOnObject", 3, 2, -2),
    Sketcher.Constraint("DistanceY", 1, 1, 1, 2, Q("2 mm")),
    Sketcher.Constraint("DistanceX", 0, 1, 0, 2, Q("1.5 mm")),
    Sketcher.Constraint("DistanceY", 5, 2, 5, 1, Q("5.5 mm")),
    Sketcher.Constraint("DistanceY", -1, 1, 2, 2, Q("3 mm")),
    Sketcher.Constraint("DistanceX", 4, 2, 2, 2, Q("2 mm")),
])
sketch14.setExpression("Constraints[12]", "Params.sketch14_height")
sketch14.setExpression("Constraints[13]", "Params.sketch14_width")
sketch14.setExpression("Constraints[14]", "Params.sketch14_height2")
pad14 = body20.newObject("PartDesign::Pad", "Pad013")
pad14.Profile = sketch14
pad14.setExpression("Length", "Params.pad14_length")
body21 = doc.addObject("PartDesign::Body", "Body020")
doc.recompute()

body20.Placement = App.Placement(V(0, 0, 0), App.Rotation(V(1, 0, 0), 90))
boolean9 = body21.newObject("PartDesign::Boolean", "Boolean008")
boolean9.Type = "Fuse"
boolean9.addObjects([body20])
body22 = doc.addObject("PartDesign::Body", "Body021")
doc.recompute()

body21.Placement = App.Placement(V(-6, -8, 1.5), App.Rotation(V(0, 0, 1), 0))
boolean10 = body22.newObject("PartDesign::Boolean", "Boolean009")
boolean10.Type = "Fuse"
boolean10.addObjects([body21])
body23 = doc.addObject("PartDesign::Body", "Body022")

sketch15 = body23.newObject("Sketcher::SketchObject", "Sketch014")
sketch15.AttachmentSupport = (doc.getObject("XY_Plane022"), [""])
sketch15.MapMode = "FlatFace"
sketch15.addGeometry([
    Part.LineSegment(V(-1.5, 0, 0), V(0, 0, 0)),
    Part.LineSegment(V(0, 0, 0), V(0, 2, 0)),
    Part.LineSegment(V(0, 2, 0), V(0.5, 3, 0)),
    Part.LineSegment(V(0.5, 3, 0), V(0, 5.5, 0)),
    Part.LineSegment(V(0, 5.5, 0), V(-1.5, 5.5, 0)),
    Part.LineSegment(V(-1.5, 5.5, 0), V(-1.5, 0, 0)),
], False)
sketch15.addConstraint([
    Sketcher.Constraint("Coincident", 0, 2, 1, 1),
    Sketcher.Constraint("Coincident", 1, 2, 2, 1),
    Sketcher.Constraint("Coincident", 2, 2, 3, 1),
    Sketcher.Constraint("Coincident", 3, 2, 4, 1),
    Sketcher.Constraint("Coincident", 4, 2, 5, 1),
    Sketcher.Constraint("Coincident", 5, 2, 0, 1),
    Sketcher.Constraint("Horizontal", 0),
    Sketcher.Constraint("Vertical", 1),
    Sketcher.Constraint("Horizontal", 4),
    Sketcher.Constraint("Vertical", 5),
    Sketcher.Constraint("Coincident", 0, 2, -1, 1),
    Sketcher.Constraint("PointOnObject", 3, 2, -2),
    Sketcher.Constraint("DistanceY", 1, 1, 1, 2, Q("2 mm")),
    Sketcher.Constraint("DistanceX", 0, 1, 0, 2, Q("1.5 mm")),
    Sketcher.Constraint("DistanceY", 5, 2, 5, 1, Q("5.5 mm")),
    Sketcher.Constraint("DistanceY", -1, 1, 2, 2, Q("3 mm")),
    Sketcher.Constraint("DistanceX", 4, 2, 2, 2, Q("2 mm")),
])
sketch15.setExpression("Constraints[12]", "Params.sketch15_height")
sketch15.setExpression("Constraints[13]", "Params.sketch15_width")
sketch15.setExpression("Constraints[14]", "Params.sketch15_height2")
pad15 = body23.newObject("PartDesign::Pad", "Pad014")
pad15.Profile = sketch15
pad15.setExpression("Length", "Params.pad15_length")
body24 = doc.addObject("PartDesign::Body", "Body023")
doc.recompute()

body23.Placement = App.Placement(V(0, 0, 0), App.Rotation(V(1, 0, 0), 90))
boolean11 = body24.newObject("PartDesign::Boolean", "Boolean010")
boolean11.Type = "Fuse"
boolean11.addObjects([body23])
body25 = doc.addObject("PartDesign::Body", "Body024")
body25.AllowCompound = True
doc.recompute()

body24.Placement = App.Placement(V(-6, 11, 1.5), App.Rotation(V(0, 0, 1), 0))
boolean12 = body25.newObject("PartDesign::Boolean", "Boolean011")
boolean12.Type = "Fuse"
boolean12.addObjects([body24])
doc.recompute()

boolean13 = body25.newObject("PartDesign::Boolean", "Boolean012")
boolean13.Type = "Fuse"
boolean13.addObjects([body16])
doc.recompute()

boolean14 = body25.newObject("PartDesign::Boolean", "Boolean013")
boolean14.Type = "Fuse"
boolean14.addObjects([body19])
doc.recompute()

boolean15 = body25.newObject("PartDesign::Boolean", "Boolean014")
boolean15.Type = "Fuse"
boolean15.addObjects([body22])
body26 = doc.addObject("PartDesign::Body", "Body025")
body26.AllowCompound = True

sketch16 = body26.newObject("Sketcher::SketchObject", "Sketch015")
sketch16.AttachmentSupport = (doc.getObject("XY_Plane025"), [""])
sketch16.MapMode = "FlatFace"
sketch16.AttachmentOffset = App.Placement(V(0, 0, 1.5), App.Rotation())
sketch16.addGeometry([
    Part.LineSegment(V(-25, -17, 0), V(-25, -18, 0)),
    Part.LineSegment(V(-25, -18, 0), V(50, -18, 0)),
    Part.LineSegment(V(50, -18, 0), V(50, -17, 0)),
    Part.LineSegment(V(50, -17, 0), V(-25, -17, 0)),
], False)
sketch16.addConstraint([
    Sketcher.Constraint("Coincident", 0, 2, 1, 1),
    Sketcher.Constraint("Coincident", 1, 2, 2, 1),
    Sketcher.Constraint("Coincident", 2, 2, 3, 1),
    Sketcher.Constraint("Coincident", 3, 2, 0, 1),
    Sketcher.Constraint("Vertical", 0),
    Sketcher.Constraint("Horizontal", 1),
    Sketcher.Constraint("Vertical", 2),
    Sketcher.Constraint("Horizontal", 3),
    Sketcher.Constraint("DistanceX", 1, 1, 1, 2, Q("75 mm")),
    Sketcher.Constraint("DistanceY", 0, 2, 0, 1, Q("1 mm")),
    Sketcher.Constraint("DistanceX", 0, 2, -1, 1, Q("25 mm")),
    Sketcher.Constraint("DistanceY", 0, 2, -1, 1, Q("18 mm")),
])
sketch16.setExpression("Constraints[8]", "Params.sketch16_width")
sketch16.setExpression("Constraints[9]", "Params.sketch16_height")
pad16 = body26.newObject("PartDesign::Pad", "Pad015")
pad16.Profile = sketch16
pad16.setExpression("Length", "Params.pad16_length")
doc.recompute()

boolean16 = body26.newObject("PartDesign::Boolean", "Boolean015")
boolean16.Type = "Fuse"
boolean16.addObjects([body4])
doc.recompute()

boolean17 = body26.newObject("PartDesign::Boolean", "Boolean016")
boolean17.Type = "Fuse"
boolean17.addObjects([body5])
doc.recompute()

boolean18 = body26.newObject("PartDesign::Boolean", "Boolean017")
boolean18.Type = "Fuse"
boolean18.addObjects([body6])
doc.recompute()

boolean19 = body26.newObject("PartDesign::Boolean", "Boolean018")
boolean19.Type = "Fuse"
boolean19.addObjects([body7])
doc.recompute()

boolean20 = body26.newObject("PartDesign::Boolean", "Boolean019")
boolean20.Type = "Fuse"
boolean20.addObjects([body8])
doc.recompute()

boolean21 = body26.newObject("PartDesign::Boolean", "Boolean020")
boolean21.Type = "Fuse"
boolean21.addObjects([body10])
doc.recompute()

boolean22 = body26.newObject("PartDesign::Boolean", "Boolean021")
boolean22.Type = "Fuse"
boolean22.addObjects([body11])
doc.recompute()

boolean23 = body26.newObject("PartDesign::Boolean", "Boolean022")
boolean23.Type = "Fuse"
boolean23.addObjects([body13])
doc.recompute()

boolean24 = body26.newObject("PartDesign::Boolean", "Boolean023")
boolean24.Type = "Fuse"
boolean24.addObjects([body25])
doc.recompute()

boolean25 = body26.newObject("PartDesign::Boolean", "Boolean024")
boolean25.Type = "Cut"
boolean25.addObjects([body3])

doc.recompute()
